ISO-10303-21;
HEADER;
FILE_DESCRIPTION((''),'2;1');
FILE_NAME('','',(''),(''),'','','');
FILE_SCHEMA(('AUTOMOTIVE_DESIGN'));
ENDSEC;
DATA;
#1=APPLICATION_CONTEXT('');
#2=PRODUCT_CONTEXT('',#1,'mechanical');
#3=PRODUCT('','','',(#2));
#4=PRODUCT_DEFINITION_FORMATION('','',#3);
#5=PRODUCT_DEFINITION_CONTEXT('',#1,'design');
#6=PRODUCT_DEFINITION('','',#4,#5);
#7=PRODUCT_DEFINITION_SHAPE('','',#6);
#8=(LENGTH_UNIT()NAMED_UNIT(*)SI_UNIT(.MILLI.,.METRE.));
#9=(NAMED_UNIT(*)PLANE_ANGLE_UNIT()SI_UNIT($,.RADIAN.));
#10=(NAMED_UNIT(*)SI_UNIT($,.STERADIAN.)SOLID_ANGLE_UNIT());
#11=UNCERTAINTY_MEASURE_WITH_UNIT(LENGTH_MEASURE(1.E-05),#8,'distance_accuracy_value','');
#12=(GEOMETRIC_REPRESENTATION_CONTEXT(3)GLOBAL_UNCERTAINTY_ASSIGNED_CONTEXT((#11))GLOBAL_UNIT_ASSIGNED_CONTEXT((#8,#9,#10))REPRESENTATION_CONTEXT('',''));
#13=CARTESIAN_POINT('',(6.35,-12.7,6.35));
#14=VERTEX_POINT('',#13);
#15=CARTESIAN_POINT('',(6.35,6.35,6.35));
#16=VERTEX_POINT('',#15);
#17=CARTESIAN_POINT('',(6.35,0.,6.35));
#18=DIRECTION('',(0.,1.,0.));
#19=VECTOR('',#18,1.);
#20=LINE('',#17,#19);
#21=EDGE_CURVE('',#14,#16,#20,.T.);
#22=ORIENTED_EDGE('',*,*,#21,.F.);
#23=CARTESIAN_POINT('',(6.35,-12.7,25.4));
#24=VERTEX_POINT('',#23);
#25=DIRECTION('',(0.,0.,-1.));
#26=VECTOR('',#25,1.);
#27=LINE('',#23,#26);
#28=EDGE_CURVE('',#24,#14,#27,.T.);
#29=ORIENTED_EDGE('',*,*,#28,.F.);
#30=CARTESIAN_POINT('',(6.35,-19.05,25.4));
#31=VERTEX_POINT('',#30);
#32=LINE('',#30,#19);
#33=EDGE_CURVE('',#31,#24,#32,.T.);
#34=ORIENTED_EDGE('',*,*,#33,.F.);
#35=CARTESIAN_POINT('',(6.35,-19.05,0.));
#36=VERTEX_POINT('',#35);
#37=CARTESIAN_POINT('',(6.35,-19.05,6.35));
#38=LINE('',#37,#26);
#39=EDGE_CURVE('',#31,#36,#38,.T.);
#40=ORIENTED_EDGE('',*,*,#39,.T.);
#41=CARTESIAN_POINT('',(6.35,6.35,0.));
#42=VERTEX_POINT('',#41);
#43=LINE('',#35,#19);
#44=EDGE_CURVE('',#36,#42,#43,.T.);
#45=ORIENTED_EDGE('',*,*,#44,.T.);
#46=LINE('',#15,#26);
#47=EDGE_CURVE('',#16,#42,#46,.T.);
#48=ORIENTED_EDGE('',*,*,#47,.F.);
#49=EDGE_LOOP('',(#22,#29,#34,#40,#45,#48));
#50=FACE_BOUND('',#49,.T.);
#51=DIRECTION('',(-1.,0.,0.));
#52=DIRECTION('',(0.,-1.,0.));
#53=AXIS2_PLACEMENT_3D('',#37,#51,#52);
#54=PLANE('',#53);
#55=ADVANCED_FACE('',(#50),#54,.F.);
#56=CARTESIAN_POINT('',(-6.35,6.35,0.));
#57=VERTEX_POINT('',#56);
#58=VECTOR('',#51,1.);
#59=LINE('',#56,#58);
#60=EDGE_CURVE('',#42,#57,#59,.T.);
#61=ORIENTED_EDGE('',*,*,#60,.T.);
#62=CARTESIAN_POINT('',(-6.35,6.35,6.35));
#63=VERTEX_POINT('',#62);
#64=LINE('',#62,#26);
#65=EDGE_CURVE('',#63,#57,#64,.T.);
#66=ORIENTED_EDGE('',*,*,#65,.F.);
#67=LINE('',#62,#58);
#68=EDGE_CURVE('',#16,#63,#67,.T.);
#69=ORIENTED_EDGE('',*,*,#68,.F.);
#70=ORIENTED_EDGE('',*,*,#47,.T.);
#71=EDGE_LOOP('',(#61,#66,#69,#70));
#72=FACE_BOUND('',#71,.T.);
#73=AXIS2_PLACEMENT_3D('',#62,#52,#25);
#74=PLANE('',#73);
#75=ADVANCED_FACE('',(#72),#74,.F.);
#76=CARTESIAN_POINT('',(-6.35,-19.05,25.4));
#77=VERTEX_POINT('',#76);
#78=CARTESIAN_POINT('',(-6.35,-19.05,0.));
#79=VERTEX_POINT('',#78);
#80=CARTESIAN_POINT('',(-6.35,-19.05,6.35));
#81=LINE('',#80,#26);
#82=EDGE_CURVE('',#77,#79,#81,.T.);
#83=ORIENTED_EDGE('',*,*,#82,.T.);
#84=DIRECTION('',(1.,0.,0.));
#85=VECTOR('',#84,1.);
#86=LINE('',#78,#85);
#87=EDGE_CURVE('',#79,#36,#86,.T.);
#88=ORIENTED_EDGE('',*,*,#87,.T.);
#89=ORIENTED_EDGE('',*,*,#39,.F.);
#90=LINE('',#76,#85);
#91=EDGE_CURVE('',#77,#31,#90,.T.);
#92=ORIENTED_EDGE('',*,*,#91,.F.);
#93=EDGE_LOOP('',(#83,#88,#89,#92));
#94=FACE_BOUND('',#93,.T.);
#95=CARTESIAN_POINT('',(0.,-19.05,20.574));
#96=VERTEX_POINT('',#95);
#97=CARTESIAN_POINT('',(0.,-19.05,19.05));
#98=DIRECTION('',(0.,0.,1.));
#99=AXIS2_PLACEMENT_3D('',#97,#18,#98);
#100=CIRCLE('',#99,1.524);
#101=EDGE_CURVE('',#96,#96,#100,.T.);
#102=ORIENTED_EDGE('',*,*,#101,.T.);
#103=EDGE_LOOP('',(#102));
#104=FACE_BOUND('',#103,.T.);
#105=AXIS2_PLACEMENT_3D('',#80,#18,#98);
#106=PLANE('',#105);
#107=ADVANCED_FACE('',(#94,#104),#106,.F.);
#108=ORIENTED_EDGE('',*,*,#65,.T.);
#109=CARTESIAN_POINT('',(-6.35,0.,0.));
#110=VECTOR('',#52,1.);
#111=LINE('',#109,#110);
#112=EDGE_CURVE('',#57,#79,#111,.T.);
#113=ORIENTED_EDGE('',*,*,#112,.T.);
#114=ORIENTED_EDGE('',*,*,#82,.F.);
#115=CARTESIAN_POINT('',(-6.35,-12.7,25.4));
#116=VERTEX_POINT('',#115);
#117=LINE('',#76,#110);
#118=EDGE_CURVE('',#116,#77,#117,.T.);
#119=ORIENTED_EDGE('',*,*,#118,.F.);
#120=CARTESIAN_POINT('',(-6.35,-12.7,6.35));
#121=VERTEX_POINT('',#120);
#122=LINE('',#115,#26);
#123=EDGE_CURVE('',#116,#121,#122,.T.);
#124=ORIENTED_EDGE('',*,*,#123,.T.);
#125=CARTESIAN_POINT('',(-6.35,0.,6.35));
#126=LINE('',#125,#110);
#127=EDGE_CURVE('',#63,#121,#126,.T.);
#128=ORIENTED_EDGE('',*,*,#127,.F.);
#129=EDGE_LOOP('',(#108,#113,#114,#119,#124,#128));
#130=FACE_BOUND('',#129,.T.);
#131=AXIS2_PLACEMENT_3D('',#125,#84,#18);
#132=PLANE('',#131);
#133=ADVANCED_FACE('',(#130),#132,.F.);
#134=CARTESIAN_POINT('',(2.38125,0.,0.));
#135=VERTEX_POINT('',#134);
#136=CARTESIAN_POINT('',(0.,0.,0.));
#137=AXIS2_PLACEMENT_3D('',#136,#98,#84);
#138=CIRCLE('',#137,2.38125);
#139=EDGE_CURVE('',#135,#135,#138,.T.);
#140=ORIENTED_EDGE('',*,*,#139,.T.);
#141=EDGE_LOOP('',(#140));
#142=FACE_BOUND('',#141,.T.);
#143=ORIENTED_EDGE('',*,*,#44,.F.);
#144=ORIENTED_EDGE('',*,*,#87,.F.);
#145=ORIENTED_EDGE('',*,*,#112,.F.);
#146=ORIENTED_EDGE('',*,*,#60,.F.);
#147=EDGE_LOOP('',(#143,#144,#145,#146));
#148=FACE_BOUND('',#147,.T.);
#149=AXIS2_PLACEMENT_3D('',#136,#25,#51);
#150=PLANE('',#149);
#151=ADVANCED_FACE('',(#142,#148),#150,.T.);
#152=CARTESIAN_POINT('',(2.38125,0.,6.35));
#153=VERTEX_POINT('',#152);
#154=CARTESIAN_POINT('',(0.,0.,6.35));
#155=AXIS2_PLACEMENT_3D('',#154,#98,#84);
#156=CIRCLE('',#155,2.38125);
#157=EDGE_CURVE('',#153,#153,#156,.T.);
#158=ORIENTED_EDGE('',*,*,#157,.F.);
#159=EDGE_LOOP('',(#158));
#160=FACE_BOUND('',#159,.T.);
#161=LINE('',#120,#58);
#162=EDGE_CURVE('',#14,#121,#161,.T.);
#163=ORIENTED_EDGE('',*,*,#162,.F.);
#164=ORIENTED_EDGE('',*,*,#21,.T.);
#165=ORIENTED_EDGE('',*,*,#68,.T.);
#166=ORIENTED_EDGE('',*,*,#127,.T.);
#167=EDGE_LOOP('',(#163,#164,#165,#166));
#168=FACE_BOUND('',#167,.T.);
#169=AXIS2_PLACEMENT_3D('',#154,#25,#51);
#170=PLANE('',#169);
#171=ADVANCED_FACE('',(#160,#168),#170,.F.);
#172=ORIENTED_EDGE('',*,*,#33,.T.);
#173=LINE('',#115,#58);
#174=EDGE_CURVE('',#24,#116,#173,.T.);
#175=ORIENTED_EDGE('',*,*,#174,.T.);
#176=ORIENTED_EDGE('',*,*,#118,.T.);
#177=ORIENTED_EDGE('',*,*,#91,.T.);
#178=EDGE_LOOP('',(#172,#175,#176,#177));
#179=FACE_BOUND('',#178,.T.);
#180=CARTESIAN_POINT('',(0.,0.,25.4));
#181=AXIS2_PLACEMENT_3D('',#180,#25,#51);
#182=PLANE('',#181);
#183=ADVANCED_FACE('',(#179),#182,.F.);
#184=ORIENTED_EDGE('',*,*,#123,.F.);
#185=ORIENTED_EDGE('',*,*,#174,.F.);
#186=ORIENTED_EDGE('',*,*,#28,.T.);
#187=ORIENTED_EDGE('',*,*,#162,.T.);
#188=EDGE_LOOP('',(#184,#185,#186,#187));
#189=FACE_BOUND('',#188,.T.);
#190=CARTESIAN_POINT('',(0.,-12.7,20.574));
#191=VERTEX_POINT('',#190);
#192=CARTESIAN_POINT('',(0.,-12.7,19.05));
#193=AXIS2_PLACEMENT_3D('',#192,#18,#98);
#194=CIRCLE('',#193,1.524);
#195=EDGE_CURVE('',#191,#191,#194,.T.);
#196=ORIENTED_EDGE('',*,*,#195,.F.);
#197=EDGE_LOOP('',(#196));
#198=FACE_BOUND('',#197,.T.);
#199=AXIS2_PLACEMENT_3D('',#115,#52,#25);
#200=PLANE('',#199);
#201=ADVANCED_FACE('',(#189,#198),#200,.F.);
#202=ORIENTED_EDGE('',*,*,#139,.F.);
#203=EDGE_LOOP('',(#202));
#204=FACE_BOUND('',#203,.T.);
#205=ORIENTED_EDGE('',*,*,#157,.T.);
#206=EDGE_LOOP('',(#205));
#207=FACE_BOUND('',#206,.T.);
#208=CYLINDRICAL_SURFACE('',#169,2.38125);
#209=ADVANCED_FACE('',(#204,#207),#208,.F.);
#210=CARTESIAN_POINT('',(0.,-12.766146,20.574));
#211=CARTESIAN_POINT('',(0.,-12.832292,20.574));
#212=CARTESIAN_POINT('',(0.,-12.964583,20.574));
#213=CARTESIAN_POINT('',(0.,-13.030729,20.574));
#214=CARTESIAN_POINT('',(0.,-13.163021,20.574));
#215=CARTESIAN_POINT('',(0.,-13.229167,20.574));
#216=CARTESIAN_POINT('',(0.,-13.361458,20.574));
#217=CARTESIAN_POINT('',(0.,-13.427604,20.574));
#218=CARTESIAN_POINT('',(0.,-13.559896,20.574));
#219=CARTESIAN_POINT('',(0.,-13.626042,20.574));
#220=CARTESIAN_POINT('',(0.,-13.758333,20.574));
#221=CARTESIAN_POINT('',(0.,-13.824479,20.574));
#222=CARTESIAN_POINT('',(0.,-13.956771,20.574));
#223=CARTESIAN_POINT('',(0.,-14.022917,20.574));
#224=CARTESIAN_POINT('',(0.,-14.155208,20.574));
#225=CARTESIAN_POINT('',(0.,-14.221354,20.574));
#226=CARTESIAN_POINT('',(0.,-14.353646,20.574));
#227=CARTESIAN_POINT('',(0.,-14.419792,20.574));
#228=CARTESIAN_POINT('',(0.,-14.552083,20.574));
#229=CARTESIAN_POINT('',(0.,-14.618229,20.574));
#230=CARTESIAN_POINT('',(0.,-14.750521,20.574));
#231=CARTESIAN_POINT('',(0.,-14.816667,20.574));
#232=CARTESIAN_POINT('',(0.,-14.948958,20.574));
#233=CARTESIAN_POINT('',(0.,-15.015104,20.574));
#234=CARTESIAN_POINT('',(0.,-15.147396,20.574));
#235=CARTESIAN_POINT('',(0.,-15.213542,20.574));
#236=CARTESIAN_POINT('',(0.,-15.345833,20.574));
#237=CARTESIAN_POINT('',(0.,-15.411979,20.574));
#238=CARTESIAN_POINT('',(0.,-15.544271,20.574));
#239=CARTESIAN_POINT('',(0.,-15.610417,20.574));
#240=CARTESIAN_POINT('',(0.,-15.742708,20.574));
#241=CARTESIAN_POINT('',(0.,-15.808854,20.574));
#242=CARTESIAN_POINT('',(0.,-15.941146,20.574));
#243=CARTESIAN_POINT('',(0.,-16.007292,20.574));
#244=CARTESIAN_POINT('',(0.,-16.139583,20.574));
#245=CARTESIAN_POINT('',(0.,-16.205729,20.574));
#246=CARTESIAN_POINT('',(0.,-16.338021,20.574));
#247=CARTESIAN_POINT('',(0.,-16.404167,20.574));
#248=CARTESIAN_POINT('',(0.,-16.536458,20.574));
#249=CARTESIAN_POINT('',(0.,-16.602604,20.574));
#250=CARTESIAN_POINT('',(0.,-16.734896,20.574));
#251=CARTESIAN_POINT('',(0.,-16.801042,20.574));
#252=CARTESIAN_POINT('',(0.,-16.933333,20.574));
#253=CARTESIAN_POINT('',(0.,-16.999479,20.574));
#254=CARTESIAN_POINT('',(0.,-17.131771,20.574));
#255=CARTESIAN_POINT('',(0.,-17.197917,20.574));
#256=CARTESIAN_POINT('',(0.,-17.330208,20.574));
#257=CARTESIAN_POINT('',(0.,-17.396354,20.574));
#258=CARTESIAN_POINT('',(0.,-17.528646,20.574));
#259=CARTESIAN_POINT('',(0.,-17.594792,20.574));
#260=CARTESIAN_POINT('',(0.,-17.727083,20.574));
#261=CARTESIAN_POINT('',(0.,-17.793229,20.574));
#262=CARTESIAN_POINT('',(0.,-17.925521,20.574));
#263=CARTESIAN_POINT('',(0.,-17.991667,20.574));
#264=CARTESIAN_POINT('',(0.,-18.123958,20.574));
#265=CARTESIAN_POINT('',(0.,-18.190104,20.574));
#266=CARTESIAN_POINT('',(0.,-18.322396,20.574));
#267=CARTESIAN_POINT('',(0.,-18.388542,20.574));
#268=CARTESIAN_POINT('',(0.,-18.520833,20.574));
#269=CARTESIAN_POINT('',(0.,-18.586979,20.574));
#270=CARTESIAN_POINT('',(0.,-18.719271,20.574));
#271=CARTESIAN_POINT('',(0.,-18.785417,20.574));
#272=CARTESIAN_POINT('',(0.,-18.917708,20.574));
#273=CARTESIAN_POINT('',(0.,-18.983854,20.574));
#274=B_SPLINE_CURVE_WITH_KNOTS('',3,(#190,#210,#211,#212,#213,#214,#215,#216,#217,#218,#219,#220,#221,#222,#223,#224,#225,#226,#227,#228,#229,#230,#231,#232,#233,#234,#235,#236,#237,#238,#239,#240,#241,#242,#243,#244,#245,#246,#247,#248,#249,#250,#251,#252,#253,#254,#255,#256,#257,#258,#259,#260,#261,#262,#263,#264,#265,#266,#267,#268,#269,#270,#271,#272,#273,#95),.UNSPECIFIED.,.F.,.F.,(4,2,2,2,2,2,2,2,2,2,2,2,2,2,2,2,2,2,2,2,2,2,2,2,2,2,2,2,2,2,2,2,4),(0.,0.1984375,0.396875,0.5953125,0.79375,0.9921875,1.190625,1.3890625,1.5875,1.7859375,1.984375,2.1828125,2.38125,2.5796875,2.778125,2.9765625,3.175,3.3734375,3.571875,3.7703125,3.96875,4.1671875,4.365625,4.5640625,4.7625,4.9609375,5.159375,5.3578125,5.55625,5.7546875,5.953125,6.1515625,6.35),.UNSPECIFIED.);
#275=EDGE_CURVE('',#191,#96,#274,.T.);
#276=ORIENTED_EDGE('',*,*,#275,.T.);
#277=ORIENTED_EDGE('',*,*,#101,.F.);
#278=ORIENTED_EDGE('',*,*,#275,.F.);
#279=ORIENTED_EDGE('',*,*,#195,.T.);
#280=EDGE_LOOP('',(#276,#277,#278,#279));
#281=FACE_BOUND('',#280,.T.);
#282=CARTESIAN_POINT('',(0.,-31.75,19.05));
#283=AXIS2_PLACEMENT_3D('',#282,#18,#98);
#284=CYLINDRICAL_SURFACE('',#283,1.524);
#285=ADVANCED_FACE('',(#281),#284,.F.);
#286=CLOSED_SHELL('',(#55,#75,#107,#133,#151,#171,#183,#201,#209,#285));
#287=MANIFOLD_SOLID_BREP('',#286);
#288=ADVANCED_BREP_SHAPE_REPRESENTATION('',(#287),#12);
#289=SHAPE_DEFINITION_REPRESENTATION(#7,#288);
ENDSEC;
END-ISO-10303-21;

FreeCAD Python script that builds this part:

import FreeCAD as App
import Part
import Sketcher
Q = App.Units.Quantity


def add_polygon(sketch, points):
    """Adds a closed chain of lines whose ends are joined by coincident constraints."""
    first, n = sketch.GeometryCount, len(points)
    for a, b in zip(points, points[1:] + points[:1]):
        sketch.addGeometry(Part.LineSegment(App.Vector(*a, 0), App.Vector(*b, 0)), False)
    for i in range(n):
        sketch.addConstraint(Sketcher.Constraint("Coincident", first + i, 2, first + (i + 1) % n, 1))

doc = App.newDocument("Part")
body = doc.addObject("PartDesign::Body", "Body")

sketch1 = body.newObject("Sketcher::SketchObject", "Sketch")
sketch1.AttachmentSupport = (doc.getObject("XY_Plane"), [""])
sketch1.MapMode = "FlatFace"
add_polygon(sketch1, [(-6.3, -19.1), (6.3, -19.1), (6.3, 6.3), (-6.3, 6.3)])
sketch1.addGeometry(Part.Circle(App.Vector(0, 0, 0), App.Vector(0, 0, 1), 2.4), False)
sketch1.addConstraint([
    Sketcher.Constraint("Horizontal", 0),
    Sketcher.Constraint("Vertical", 1),
    Sketcher.Constraint("Horizontal", 2),
    Sketcher.Constraint("Vertical", 3),
    Sketcher.Constraint("Coincident", 4, 3, -1, 1),
    Sketcher.Constraint("DistanceY", 1, 1, 1, 2, Q("1 in")),
    Sketcher.Constraint("Diameter", 4, Q("0.1875 in")),
    Sketcher.Constraint("DistanceX", 0, 1, 0, 2, Q("0.5 in")),
    Sketcher.Constraint("DistanceX", -1, 1, 0, 2, Q("0.25 in")),
    Sketcher.Constraint("DistanceY", 0, 2, -1, 1, Q("0.75 in")),
])
pad1 = body.newObject("PartDesign::Pad", "Pad")
pad1.Profile = sketch1
pad1.Length = Q("0.25 in")

sketch2 = body.newObject("Sketcher::SketchObject", "Sketch001")
sketch2.AttachmentSupport = (doc.getObject("XY_Plane"), [""])
sketch2.MapMode = "FlatFace"
sketch2.AttachmentOffset = App.Placement(App.Vector(0, 0, 0.25 * 25.4), App.Rotation())
add_polygon(sketch2, [(-6, -13), (-6, -19), (6, -19), (6, -13)])
sketch2.addConstraint([
    Sketcher.Constraint("Vertical", 0),
    Sketcher.Constraint("Horizontal", 1),
    Sketcher.Constraint("Vertical", 2),
    Sketcher.Constraint("Horizontal", 3),
    Sketcher.Constraint("DistanceX", 1, 1, 1, 2, Q("0.5 in")),
    Sketcher.Constraint("DistanceY", 0, 2, 0, 1, Q("0.25 in")),
    Sketcher.Constraint("DistanceY", 2, 2, -1, 1, Q("0.5 in")),
    Sketcher.Constraint("DistanceX", 0, 2, -1, 1, Q("0.25 in")),
])
pad2 = body.newObject("PartDesign::Pad", "Pad001")
pad2.Profile = sketch2
pad2.Length = Q("0.75 in")

sketch3 = body.newObject("Sketcher::SketchObject", "Sketch002")
sketch3.AttachmentSupport = (doc.getObject("XZ_Plane"), [""])
sketch3.MapMode = "FlatFace"
sketch3.AttachmentOffset = App.Placement(App.Vector(0, 0, 0.5 * 25.4), App.Rotation())
sketch3.addGeometry(Part.Circle(App.Vector(0, 19.1, 0), App.Vector(0, 0, 1), 1.5), False)
sketch3.addConstraint([
    Sketcher.Constraint("PointOnObject", 0, 3, -2),
    Sketcher.Constraint("Diameter", 0, Q("0.12 in")),
    Sketcher.Constraint("DistanceY", -1, 1, 0, 3, Q("0.75 in")),
])
pocket1 = body.newObject("PartDesign::Pocket", "Pocket")
pocket1.Profile = sketch3
pocket1.Length = Q("0.75 in")
pocket1.Reversed = True

doc.recompute()
